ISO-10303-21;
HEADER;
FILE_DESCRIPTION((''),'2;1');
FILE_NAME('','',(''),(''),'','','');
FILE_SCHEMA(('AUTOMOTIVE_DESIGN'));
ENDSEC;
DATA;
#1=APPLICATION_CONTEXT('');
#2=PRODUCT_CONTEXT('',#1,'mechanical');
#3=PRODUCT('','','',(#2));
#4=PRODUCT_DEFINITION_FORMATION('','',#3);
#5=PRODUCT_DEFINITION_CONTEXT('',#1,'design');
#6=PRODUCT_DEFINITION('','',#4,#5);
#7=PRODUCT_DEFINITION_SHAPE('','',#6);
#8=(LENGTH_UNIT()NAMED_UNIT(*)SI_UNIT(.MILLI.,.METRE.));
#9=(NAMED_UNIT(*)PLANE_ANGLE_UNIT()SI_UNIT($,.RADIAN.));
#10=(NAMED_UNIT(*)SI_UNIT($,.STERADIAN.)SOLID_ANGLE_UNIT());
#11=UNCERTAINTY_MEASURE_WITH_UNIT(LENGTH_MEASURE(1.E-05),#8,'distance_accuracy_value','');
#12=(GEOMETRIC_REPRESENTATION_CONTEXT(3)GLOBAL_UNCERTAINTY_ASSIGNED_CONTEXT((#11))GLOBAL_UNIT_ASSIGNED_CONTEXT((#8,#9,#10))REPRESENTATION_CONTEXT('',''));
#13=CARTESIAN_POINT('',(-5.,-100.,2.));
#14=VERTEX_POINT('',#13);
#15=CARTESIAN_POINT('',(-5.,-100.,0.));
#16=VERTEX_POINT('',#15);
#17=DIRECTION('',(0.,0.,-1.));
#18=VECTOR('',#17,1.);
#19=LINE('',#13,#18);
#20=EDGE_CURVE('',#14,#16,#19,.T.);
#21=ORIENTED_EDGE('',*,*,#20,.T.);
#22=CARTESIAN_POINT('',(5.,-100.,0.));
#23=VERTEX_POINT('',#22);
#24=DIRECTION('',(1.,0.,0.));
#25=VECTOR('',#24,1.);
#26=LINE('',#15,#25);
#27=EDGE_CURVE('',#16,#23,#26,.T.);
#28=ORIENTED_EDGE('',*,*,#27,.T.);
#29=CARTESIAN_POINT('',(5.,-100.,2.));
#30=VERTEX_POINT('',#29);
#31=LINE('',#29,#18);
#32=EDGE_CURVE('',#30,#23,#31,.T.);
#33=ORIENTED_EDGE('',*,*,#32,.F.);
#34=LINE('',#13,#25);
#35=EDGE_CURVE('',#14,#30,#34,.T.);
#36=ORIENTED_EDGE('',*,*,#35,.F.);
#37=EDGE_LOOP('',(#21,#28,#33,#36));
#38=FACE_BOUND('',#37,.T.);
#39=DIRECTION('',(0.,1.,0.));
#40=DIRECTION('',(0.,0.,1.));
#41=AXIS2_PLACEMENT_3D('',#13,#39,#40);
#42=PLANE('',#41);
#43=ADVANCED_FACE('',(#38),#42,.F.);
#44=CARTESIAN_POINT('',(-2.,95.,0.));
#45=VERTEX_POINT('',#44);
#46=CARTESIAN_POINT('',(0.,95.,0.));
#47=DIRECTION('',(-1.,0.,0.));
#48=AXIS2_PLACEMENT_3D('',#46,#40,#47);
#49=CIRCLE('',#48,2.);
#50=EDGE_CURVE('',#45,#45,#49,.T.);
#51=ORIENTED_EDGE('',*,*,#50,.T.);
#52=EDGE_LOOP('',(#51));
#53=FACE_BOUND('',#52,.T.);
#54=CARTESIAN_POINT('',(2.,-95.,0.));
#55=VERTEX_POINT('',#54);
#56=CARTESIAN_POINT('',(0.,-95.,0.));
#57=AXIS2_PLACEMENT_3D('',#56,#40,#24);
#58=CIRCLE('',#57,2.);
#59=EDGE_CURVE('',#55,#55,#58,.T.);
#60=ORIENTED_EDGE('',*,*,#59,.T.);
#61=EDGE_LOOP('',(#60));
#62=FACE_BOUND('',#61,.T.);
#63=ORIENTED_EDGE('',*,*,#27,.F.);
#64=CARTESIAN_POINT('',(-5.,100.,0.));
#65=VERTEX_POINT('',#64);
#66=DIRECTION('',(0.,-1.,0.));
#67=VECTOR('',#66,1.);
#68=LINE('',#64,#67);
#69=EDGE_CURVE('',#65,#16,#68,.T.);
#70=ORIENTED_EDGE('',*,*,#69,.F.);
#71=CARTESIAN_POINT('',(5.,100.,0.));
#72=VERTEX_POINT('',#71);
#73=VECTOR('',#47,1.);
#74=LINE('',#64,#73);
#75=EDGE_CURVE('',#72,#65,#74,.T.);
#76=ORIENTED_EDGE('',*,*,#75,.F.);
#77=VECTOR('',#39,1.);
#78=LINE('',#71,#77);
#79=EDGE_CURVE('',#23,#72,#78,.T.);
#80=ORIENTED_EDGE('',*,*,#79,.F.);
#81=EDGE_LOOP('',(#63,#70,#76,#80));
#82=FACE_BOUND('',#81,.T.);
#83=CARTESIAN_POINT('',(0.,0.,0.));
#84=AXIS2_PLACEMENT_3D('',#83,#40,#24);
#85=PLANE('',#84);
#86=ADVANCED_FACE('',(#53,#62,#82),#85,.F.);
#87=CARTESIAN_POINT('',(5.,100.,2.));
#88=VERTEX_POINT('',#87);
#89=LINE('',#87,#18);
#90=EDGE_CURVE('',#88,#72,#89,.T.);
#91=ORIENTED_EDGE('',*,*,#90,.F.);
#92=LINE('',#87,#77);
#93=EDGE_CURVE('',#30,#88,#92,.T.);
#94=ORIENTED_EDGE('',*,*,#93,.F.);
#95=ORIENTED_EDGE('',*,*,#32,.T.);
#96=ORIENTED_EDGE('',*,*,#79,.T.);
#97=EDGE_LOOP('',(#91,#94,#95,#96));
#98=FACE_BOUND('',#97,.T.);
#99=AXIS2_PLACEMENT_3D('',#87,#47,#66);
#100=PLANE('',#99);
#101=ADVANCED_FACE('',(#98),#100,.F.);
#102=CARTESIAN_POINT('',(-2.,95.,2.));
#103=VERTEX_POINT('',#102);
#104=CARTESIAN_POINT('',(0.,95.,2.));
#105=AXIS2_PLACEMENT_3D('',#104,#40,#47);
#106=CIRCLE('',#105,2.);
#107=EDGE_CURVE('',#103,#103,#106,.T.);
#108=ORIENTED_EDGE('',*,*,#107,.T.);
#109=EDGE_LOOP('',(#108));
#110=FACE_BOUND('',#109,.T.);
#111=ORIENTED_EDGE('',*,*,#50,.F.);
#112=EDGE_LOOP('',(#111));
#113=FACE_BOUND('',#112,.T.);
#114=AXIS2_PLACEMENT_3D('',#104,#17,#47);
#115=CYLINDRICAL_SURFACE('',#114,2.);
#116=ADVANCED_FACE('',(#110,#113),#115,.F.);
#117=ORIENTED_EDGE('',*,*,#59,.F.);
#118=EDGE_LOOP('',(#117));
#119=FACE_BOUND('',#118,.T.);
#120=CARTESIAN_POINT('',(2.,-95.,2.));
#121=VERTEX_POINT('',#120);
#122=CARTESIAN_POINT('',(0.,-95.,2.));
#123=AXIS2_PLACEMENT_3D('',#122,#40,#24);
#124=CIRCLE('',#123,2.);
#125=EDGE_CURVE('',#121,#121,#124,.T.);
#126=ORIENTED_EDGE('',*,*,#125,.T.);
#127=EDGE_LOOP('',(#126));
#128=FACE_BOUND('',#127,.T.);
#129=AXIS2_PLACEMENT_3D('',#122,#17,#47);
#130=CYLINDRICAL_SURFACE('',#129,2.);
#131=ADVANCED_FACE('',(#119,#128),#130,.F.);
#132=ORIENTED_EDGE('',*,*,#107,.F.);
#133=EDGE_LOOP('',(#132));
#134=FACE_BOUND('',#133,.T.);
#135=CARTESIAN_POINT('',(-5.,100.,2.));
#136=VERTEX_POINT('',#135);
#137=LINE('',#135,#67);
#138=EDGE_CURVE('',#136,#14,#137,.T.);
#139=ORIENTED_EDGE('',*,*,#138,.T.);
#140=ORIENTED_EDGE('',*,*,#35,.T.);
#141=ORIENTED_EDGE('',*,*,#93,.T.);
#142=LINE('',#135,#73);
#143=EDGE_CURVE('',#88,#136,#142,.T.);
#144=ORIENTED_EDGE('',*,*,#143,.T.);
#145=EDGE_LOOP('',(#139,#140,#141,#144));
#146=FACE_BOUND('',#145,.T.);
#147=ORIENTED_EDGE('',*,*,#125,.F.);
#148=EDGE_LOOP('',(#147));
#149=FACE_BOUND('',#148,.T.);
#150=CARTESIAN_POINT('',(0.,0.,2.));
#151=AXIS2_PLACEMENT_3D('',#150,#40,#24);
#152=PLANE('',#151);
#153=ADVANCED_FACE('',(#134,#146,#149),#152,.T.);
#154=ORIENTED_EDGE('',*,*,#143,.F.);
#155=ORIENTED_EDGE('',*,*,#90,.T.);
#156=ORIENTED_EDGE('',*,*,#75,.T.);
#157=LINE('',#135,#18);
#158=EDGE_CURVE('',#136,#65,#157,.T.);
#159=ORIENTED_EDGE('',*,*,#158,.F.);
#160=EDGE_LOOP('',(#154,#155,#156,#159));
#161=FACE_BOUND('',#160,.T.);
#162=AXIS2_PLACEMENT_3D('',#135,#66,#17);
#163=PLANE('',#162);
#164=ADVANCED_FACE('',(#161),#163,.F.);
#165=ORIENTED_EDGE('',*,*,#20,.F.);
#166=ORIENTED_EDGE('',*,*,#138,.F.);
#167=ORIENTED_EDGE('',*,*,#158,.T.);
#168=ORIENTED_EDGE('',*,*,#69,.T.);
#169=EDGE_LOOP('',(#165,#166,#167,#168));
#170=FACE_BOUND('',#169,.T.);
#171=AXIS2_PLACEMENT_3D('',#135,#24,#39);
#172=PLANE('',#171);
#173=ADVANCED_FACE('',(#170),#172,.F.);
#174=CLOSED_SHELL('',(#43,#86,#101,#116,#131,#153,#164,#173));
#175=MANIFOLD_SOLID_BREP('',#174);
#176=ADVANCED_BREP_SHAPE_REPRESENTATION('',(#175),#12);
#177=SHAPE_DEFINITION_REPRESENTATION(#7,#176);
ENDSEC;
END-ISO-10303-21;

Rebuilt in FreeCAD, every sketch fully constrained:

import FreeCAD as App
import Part
import Sketcher
Q = App.Units.Quantity

doc = App.newDocument("Part")
body = doc.addObject("PartDesign::Body", "Body")

# Sketch on XY plane
sketch1 = body.newObject("Sketcher::SketchObject", "Sketch")
sketch1.AttachmentSupport = (doc.getObject("XY_Plane"), [""])
sketch1.MapMode = "FlatFace"
sketch1.addGeometry([
    Part.LineSegment(App.Vector(-5, 100, 0), App.Vector(-5, -100, 0)),  # 0
    Part.LineSegment(App.Vector(-5, -100, 0), App.Vector(5, -100, 0)),  # 1
    Part.LineSegment(App.Vector(5, -100, 0), App.Vector(5, 100, 0)),  # 2
    Part.LineSegment(App.Vector(5, 100, 0), App.Vector(-5, 100, 0)),  # 3
    Part.Circle(App.Vector(0, -95, 0), App.Vector(0, 0, 1), 2),  # 4
    Part.Circle(App.Vector(0, 95, 0), App.Vector(0, 0, 1), 2),  # 5
], False)
sketch1.addConstraint([
    Sketcher.Constraint("Coincident", 0, 2, 1, 1),
    Sketcher.Constraint("Coincident", 1, 2, 2, 1),
    Sketcher.Constraint("Coincident", 2, 2, 3, 1),
    Sketcher.Constraint("Coincident", 3, 2, 0, 1),
    Sketcher.Constraint("Vertical", 0),
    Sketcher.Constraint("Horizontal", 1),
    Sketcher.Constraint("Vertical", 2),
    Sketcher.Constraint("Horizontal", 3),
    Sketcher.Constraint("Equal", 4, 5),
    Sketcher.Constraint("Symmetric", 4, 3, 5, 3, -1, 1),
    Sketcher.Constraint("Symmetric", 0, 2, 2, 2, -1, 1),
    Sketcher.Constraint("PointOnObject", 4, 3, -2),
    Sketcher.Constraint("Diameter", 4, Q("4 mm")),
    Sketcher.Constraint("DistanceX", 1, 1, 1, 2, Q("10 mm")),
    Sketcher.Constraint("DistanceY", 0, 2, 0, 1, Q("200 mm")),
    Sketcher.Constraint("DistanceY", 4, 3, -1, 1, Q("95 mm")),
])
pad1 = body.newObject("PartDesign::Pad", "Pad")
pad1.Profile = sketch1
pad1.Length = 2

doc.recompute()
